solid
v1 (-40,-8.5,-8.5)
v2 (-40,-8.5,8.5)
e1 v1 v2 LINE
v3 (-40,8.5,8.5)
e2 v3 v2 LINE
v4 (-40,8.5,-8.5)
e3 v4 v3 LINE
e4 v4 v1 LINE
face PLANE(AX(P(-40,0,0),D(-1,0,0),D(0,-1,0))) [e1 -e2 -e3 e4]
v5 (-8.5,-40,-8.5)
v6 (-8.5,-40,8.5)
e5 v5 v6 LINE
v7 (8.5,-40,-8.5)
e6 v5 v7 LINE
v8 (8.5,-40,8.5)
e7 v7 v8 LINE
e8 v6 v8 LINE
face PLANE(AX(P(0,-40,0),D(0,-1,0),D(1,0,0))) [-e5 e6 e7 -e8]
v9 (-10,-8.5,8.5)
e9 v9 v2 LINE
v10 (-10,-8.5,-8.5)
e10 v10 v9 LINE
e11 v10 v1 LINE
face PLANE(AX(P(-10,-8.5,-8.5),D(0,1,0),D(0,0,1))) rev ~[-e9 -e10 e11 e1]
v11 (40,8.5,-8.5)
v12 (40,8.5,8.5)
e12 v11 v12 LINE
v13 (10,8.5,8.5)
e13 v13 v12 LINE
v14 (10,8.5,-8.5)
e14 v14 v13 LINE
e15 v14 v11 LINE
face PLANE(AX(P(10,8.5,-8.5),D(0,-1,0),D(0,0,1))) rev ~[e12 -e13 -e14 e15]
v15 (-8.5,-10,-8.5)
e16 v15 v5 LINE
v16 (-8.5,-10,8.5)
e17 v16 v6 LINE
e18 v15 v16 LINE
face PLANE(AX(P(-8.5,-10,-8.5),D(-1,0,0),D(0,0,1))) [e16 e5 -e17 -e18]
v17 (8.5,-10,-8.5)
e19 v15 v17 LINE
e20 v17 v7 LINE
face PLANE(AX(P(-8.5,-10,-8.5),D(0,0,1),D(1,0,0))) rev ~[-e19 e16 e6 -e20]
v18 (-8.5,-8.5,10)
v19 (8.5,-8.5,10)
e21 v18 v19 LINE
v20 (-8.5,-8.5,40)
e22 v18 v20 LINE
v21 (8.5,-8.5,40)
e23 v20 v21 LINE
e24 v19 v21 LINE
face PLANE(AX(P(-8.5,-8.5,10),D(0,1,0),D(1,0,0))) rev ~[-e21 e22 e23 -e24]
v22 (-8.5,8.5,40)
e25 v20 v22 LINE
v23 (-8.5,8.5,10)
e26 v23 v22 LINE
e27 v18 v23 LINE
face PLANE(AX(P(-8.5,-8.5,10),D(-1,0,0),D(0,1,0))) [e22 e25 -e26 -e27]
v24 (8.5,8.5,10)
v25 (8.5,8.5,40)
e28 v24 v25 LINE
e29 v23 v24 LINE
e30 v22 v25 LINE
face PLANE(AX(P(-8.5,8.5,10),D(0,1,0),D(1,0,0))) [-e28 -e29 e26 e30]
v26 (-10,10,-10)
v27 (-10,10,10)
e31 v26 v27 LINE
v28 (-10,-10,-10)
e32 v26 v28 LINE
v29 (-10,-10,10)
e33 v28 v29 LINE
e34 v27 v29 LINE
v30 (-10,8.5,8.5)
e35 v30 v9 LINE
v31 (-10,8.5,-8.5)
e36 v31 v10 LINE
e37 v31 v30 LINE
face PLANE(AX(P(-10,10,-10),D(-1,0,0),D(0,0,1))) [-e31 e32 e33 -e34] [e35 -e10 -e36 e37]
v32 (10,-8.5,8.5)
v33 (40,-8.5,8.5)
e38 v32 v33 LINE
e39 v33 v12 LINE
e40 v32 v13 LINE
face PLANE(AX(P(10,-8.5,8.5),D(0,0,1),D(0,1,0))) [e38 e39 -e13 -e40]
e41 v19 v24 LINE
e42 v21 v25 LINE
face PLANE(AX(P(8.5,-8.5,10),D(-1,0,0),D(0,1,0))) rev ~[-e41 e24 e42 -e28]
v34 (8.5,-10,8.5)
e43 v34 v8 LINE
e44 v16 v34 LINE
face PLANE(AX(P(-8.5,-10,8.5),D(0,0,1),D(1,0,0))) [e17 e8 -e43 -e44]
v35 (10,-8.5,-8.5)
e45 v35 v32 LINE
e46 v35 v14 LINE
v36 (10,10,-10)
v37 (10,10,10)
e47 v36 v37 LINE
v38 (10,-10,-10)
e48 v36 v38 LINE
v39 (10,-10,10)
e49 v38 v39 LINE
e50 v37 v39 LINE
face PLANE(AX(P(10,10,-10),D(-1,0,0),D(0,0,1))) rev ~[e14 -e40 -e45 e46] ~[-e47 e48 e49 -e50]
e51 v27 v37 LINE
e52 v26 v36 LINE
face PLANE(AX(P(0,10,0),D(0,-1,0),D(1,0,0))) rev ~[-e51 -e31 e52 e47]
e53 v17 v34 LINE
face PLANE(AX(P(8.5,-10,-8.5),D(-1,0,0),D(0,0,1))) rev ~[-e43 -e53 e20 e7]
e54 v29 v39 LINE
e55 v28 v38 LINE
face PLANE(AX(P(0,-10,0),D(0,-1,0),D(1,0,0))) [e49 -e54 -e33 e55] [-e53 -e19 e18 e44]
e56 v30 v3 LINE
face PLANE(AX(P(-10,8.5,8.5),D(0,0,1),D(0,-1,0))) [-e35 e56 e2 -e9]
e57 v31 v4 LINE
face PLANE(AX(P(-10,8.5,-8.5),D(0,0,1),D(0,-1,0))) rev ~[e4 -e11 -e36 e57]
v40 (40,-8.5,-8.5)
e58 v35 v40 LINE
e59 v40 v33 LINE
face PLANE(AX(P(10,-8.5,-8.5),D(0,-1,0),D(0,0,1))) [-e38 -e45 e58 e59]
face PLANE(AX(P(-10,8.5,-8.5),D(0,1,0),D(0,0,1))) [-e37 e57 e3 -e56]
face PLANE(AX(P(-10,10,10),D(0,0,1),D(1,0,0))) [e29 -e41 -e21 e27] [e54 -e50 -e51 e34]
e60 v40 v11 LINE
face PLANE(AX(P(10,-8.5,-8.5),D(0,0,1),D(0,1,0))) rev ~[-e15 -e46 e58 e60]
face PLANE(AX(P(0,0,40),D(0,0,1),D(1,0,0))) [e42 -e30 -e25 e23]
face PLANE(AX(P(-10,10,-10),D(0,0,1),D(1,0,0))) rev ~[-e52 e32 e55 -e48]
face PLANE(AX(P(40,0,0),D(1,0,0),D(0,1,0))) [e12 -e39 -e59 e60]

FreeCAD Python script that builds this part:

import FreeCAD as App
import Part
import Sketcher
Q = App.Units.Quantity


def add_polygon(sketch, points):
    """Adds a closed chain of lines whose ends are joined by coincident constraints."""
    first, n = sketch.GeometryCount, len(points)
    for a, b in zip(points, points[1:] + points[:1]):
        sketch.addGeometry(Part.LineSegment(App.Vector(*a, 0), App.Vector(*b, 0)), False)
    for i in range(n):
        sketch.addConstraint(Sketcher.Constraint("Coincident", first + i, 2, first + (i + 1) % n, 1))

doc = App.newDocument("Part")
body = doc.addObject("PartDesign::Body", "Body")

# Sketch on XZ plane
sketch1 = doc.addObject("Sketcher::SketchObject", "Sketch")
body.addObject(sketch1)
sketch1.AttachmentSupport = (doc.XZ_Plane, [""])
sketch1.MapMode = "FlatFace"
add_polygon(sketch1, [(-10, 10), (-10, -10), (10, -10), (10, 10)])  # lines 0-3
sketch1.addConstraint([
    Sketcher.Constraint("Vertical", 0),
    Sketcher.Constraint("Horizontal", 1),
    Sketcher.Constraint("Vertical", 2),
    Sketcher.Constraint("Horizontal", 3),
    Sketcher.Constraint("Symmetric", 0, 2, 2, 2, -1, 1),
    Sketcher.Constraint("Equal", 3, 0),
    Sketcher.Constraint("DistanceX", 1, 1, 1, 2, Q("20 mm")),
])
pad1 = doc.addObject("PartDesign::Pad", "Pad")
body.addObject(pad1)
pad1.Profile = sketch1
pad1.Length = 20
body2 = doc.addObject("PartDesign::Body", "Body001")
doc.recompute()

body.Placement = App.Placement(App.Vector(0, 10, 0), App.Rotation(App.Vector(0, 0, 1), 0))
boolean = doc.addObject("PartDesign::Boolean", "Boolean")
body2.addObject(boolean)
boolean.Type = "Fuse"
boolean.addObjects([body])

# Sketch on XZ plane
sketch2 = doc.addObject("Sketcher::SketchObject", "Sketch001")
body2.addObject(sketch2)
sketch2.AttachmentSupport = (doc.getObject("XZ_Plane001"), [""])
sketch2.MapMode = "FlatFace"
sketch2.AttachmentOffset = App.Placement(App.Vector(0, 0, 10), App.Rotation())
add_polygon(sketch2, [(-8.5, 8.5), (-8.5, -8.5), (8.5, -8.5), (8.5, 8.5)])  # lines 0-3
sketch2.addConstraint([
    Sketcher.Constraint("Vertical", 0),
    Sketcher.Constraint("Horizontal", 1),
    Sketcher.Constraint("Vertical", 2),
    Sketcher.Constraint("Horizontal", 3),
    Sketcher.Constraint("Symmetric", 0, 2, 2, 2, -1, 1),
    Sketcher.Constraint("Equal", 3, 0),
    Sketcher.Constraint("DistanceX", 1, 1, 1, 2, Q("17 mm")),
])
pad2 = doc.addObject("PartDesign::Pad", "Pad001")
body2.addObject(pad2)
pad2.Profile = sketch2
pad2.Length = 30

# Sketch on YZ plane
sketch3 = doc.addObject("Sketcher::SketchObject", "Sketch002")
body2.addObject(sketch3)
sketch3.AttachmentSupport = (doc.getObject("YZ_Plane001"), [""])
sketch3.MapMode = "FlatFace"
sketch3.AttachmentOffset = App.Placement(App.Vector(0, 0, 10), App.Rotation())
add_polygon(sketch3, [(-8.5, 8.5), (-8.5, -8.5), (8.5, -8.5), (8.5, 8.5)])  # lines 0-3
sketch3.addConstraint([
    Sketcher.Constraint("Vertical", 0),
    Sketcher.Constraint("Horizontal", 1),
    Sketcher.Constraint("Vertical", 2),
    Sketcher.Constraint("Horizontal", 3),
    Sketcher.Constraint("Symmetric", 0, 2, 2, 2, -1, 1),
    Sketcher.Constraint("Equal", 3, 0),
    Sketcher.Constraint("DistanceX", 1, 1, 1, 2, Q("17 mm")),
])
pad3 = doc.addObject("PartDesign::Pad", "Pad002")
body2.addObject(pad3)
pad3.Profile = sketch3
pad3.Length = 30

# Sketch on XY plane
sketch4 = doc.addObject("Sketcher::SketchObject", "Sketch003")
body2.addObject(sketch4)
sketch4.AttachmentSupport = (doc.getObject("XY_Plane001"), [""])
sketch4.MapMode = "FlatFace"
sketch4.AttachmentOffset = App.Placement(App.Vector(0, 0, 10), App.Rotation())
add_polygon(sketch4, [(-8.5, 8.5), (-8.5, -8.5), (8.5, -8.5), (8.5, 8.5)])  # lines 0-3
sketch4.addConstraint([
    Sketcher.Constraint("Vertical", 0),
    Sketcher.Constraint("Horizontal", 1),
    Sketcher.Constraint("Vertical", 2),
    Sketcher.Constraint("Horizontal", 3),
    Sketcher.Constraint("Symmetric", 0, 2, 2, 2, -1, 1),
    Sketcher.Constraint("Equal", 3, 0),
    Sketcher.Constraint("DistanceX", 1, 1, 1, 2, Q("17 mm")),
])
pad4 = doc.addObject("PartDesign::Pad", "Pad003")
body2.addObject(pad4)
pad4.Profile = sketch4
pad4.Length = 30

# Sketch on YZ plane
sketch5 = doc.addObject("Sketcher::SketchObject", "Sketch004")
body2.addObject(sketch5)
sketch5.AttachmentSupport = (doc.getObject("YZ_Plane001"), [""])
sketch5.MapMode = "FlatFace"
sketch5.AttachmentOffset = App.Placement(App.Vector(0, 0, -10), App.Rotation())
add_polygon(sketch5, [(8.5, 8.5), (8.5, -8.5), (-8.5, -8.5), (-8.5, 8.5)])  # lines 0-3
sketch5.addConstraint([
    Sketcher.Constraint("Vertical", 0),
    Sketcher.Constraint("Horizontal", 1),
    Sketcher.Constraint("Vertical", 2),
    Sketcher.Constraint("Horizontal", 3),
    Sketcher.Constraint("Symmetric", 0, 2, 2, 2, -1, 1),
    Sketcher.Constraint("Equal", 3, 0),
    Sketcher.Constraint("DistanceX", 1, 2, 1, 1, Q("17 mm")),
])
pad5 = doc.addObject("PartDesign::Pad", "Pad004")
body2.addObject(pad5)
pad5.Profile = sketch5
pad5.Length = 30
pad5.Reversed = True

doc.recompute()
